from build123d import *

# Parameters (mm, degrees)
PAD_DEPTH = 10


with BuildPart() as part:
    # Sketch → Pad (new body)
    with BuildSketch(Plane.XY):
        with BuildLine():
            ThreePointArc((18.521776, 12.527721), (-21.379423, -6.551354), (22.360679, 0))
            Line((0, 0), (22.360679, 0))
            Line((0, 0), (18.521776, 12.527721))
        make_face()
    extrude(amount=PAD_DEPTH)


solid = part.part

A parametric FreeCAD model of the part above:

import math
import FreeCAD as App
import Part
import Sketcher

V = App.Vector

doc = App.newDocument("Part")
body = doc.addObject("PartDesign::Body", "Body")

sketch1 = doc.addObject("Sketcher::SketchObject", "Sketch")
body.addObject(sketch1)
sketch1.AttachmentSupport = (doc.XY_Plane, [""])
sketch1.MapMode = "FlatFace"
sketch1.addGeometry([
    Part.ArcOfCircle(Part.Circle(V(0, 0, 0), V(0, 0, 1), 22), math.radians(34), math.radians(360)),
    Part.LineSegment(V(22, 0, 0), V(0, 0, 0)),
    Part.LineSegment(V(0, 0, 0), V(19, 13, 0)),
], False)
sketch1.addConstraint([
    Sketcher.Constraint("Coincident", 0, 2, 1, 1),
    Sketcher.Constraint("Coincident", 1, 2, 2, 1),
    Sketcher.Constraint("Coincident", 2, 2, 0, 1),
    Sketcher.Constraint("Horizontal", 1),
    Sketcher.Constraint("Coincident", 0, 3, -1, 1),
    Sketcher.Constraint("Coincident", 1, 2, -1, 1),
    Sketcher.Constraint("Radius", 0, 22.360679),
    Sketcher.Constraint("DistanceY", -1, 1, 2, 2, 12.527721),
])
pad1 = doc.addObject("PartDesign::Pad", "Pad")
body.addObject(pad1)
pad1.Profile = sketch1
pad1.Length = 10

doc.recompute()
